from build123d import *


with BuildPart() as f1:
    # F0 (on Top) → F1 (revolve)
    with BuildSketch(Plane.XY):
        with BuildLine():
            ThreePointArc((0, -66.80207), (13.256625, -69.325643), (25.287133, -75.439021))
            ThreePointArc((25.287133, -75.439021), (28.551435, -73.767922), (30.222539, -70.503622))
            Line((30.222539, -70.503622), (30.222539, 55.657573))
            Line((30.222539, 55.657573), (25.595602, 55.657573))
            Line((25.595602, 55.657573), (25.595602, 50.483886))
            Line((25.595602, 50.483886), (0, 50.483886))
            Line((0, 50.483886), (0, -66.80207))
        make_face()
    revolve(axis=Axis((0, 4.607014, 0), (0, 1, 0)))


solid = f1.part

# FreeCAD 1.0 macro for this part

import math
import FreeCAD as App
import Part
import Sketcher

V = App.Vector
Q = App.Units.Quantity

doc = App.newDocument("Part")
body = doc.addObject("PartDesign::Body", "Body")

sketch1 = body.newObject("Sketcher::SketchObject", "Sketch")
sketch1.AttachmentSupport = (doc.getObject("XY_Plane"), [""])
sketch1.MapMode = "FlatFace"
sketch1.addGeometry([
    Part.ArcOfCircle(Part.Circle(V(-2.259903, -114.754696, 0), V(0, 0, 1), 48.005849), math.radians(54.982496), math.radians(87.301771)),
    Part.ArcOfCircle(Part.Circle(V(24.330924, -69.547405, 0), V(0, 0, 1), 5.968708), math.radians(-80.781284), math.radians(-9.218797)),
    Part.LineSegment(V(30.222539, -70.503622, 0), V(30.222539, 55.657573, 0)),
    Part.LineSegment(V(30.222539, 55.657573, 0), V(25.595602, 55.657573, 0)),
    Part.LineSegment(V(25.595602, 55.657573, 0), V(25.595602, 50.483886, 0)),
    Part.LineSegment(V(25.595602, 50.483886, 0), V(0, 50.483886, 0)),
    Part.LineSegment(V(0, 50.483886, 0), V(0, -66.80207, 0)),
], False)
sketch1.addConstraint([
    Sketcher.Constraint("Coincident", 0, 1, 1, 1),
    Sketcher.Constraint("Coincident", 1, 2, 2, 1),
    Sketcher.Constraint("Coincident", 2, 2, 3, 1),
    Sketcher.Constraint("Coincident", 3, 2, 4, 1),
    Sketcher.Constraint("Coincident", 4, 2, 5, 1),
    Sketcher.Constraint("Coincident", 5, 2, 6, 1),
    Sketcher.Constraint("Coincident", 6, 2, 0, 2),
    Sketcher.Constraint("Vertical", 2),
    Sketcher.Constraint("Horizontal", 3),
    Sketcher.Constraint("Vertical", 4),
    Sketcher.Constraint("Horizontal", 5),
    Sketcher.Constraint("Vertical", 6),
    Sketcher.Constraint("PointOnObject", 5, 2, -2),
    Sketcher.Constraint("Radius", 0, Q("48.005849 mm")),
    Sketcher.Constraint("DistanceX", 5, 2, 5, 1, Q("25.595602 mm")),
    Sketcher.Constraint("Radius", 1, Q("5.968708 mm")),
    Sketcher.Constraint("DistanceY", 0, 1, 1, 2, Q("4.935399 mm")),
    Sketcher.Constraint("DistanceX", 3, 2, 3, 1, Q("4.626937 mm")),
    Sketcher.Constraint("DistanceY", 2, 1, 2, 2, Q("126.161195 mm")),
    Sketcher.Constraint("DistanceY", 4, 2, 4, 1, Q("5.173687 mm")),
    Sketcher.Constraint("DistanceY", 6, 2, 6, 1, Q("117.285956 mm")),
    Sketcher.Constraint("DistanceY", 0, 1, -1, 1, Q("75.439021 mm")),
    Sketcher.Constraint("DistanceY", 0, 3, 1, 3, Q("45.207291 mm")),
])
revolution = body.newObject("PartDesign::Revolution", "Revolution")
revolution.Profile = sketch1
revolution.ReferenceAxis = (sketch1, ["V_Axis"])
revolution.Angle = 360

doc.recompute()
